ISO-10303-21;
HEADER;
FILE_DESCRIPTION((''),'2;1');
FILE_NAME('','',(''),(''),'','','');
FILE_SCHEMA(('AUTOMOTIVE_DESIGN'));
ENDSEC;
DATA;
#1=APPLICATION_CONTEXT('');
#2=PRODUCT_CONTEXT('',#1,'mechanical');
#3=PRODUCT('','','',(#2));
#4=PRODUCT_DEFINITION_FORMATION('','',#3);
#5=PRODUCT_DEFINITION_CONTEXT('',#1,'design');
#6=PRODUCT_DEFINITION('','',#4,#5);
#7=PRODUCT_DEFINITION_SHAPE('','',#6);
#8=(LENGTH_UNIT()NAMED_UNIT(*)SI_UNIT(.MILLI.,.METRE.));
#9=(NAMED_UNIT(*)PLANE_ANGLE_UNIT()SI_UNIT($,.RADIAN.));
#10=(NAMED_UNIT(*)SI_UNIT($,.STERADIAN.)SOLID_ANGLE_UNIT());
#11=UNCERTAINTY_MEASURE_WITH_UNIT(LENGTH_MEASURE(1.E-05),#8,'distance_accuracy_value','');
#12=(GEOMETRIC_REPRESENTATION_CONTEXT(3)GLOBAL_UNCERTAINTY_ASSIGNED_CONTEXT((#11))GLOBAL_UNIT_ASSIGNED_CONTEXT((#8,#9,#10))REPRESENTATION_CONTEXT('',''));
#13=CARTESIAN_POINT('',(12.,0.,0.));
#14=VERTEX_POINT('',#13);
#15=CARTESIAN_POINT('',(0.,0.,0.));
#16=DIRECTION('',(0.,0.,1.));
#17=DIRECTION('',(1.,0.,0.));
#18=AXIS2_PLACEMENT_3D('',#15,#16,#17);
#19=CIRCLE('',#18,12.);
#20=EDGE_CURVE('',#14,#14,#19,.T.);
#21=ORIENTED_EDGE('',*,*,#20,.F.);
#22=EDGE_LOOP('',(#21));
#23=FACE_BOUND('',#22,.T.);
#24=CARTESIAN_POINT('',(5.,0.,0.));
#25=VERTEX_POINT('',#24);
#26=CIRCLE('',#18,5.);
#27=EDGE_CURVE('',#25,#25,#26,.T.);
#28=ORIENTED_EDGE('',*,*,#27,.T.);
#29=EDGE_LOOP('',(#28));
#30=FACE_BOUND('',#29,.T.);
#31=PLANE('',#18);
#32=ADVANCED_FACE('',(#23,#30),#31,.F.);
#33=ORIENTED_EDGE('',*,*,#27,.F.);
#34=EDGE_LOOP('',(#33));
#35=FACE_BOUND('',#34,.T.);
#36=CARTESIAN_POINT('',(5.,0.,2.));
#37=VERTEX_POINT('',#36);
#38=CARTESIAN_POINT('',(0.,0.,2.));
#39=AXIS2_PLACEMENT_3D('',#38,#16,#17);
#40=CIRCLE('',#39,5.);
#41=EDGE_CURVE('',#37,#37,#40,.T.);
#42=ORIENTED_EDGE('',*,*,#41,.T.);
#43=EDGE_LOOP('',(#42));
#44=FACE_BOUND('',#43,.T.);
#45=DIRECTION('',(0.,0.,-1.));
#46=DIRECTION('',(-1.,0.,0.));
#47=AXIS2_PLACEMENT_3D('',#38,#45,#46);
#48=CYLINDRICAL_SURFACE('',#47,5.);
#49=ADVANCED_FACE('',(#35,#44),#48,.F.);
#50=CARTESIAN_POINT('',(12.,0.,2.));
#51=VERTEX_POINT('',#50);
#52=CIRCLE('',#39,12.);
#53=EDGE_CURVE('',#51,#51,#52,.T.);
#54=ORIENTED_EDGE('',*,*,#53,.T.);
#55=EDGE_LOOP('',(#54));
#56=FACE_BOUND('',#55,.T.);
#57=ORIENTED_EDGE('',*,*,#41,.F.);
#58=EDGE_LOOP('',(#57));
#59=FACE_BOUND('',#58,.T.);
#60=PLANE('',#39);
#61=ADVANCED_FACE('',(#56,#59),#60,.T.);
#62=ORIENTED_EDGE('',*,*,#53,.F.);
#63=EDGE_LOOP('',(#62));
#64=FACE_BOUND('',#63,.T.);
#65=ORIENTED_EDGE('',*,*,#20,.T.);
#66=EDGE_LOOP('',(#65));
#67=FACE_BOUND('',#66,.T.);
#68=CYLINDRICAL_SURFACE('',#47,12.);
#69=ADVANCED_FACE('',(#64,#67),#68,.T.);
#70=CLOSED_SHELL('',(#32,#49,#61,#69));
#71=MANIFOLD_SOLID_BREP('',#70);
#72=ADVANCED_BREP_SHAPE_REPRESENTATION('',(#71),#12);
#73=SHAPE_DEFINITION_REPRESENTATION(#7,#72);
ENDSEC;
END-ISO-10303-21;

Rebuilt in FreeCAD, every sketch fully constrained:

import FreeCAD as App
import Part
import Sketcher

doc = App.newDocument("Part")
body = doc.addObject("PartDesign::Body", "Body")

sketch1 = body.newObject("Sketcher::SketchObject", "Sketch")
sketch1.AttachmentSupport = (doc.getObject("XY_Plane"), [""])
sketch1.MapMode = "FlatFace"
sketch1.addGeometry([
    Part.Circle(App.Vector(0, 0, 0), App.Vector(0, 0, 1), 12),
    Part.Circle(App.Vector(0, 0, 0), App.Vector(0, 0, 1), 5),
], False)
sketch1.addConstraint([
    Sketcher.Constraint("Coincident", 0, 3, -1, 1),
    Sketcher.Constraint("Coincident", 1, 3, -1, 1),
    Sketcher.Constraint("Diameter", 0, 24.0),
    Sketcher.Constraint("Diameter", 1, 10.0),
])
pad1 = body.newObject("PartDesign::Pad", "Pad")
pad1.Profile = sketch1
pad1.Length = 2

doc.recompute()
